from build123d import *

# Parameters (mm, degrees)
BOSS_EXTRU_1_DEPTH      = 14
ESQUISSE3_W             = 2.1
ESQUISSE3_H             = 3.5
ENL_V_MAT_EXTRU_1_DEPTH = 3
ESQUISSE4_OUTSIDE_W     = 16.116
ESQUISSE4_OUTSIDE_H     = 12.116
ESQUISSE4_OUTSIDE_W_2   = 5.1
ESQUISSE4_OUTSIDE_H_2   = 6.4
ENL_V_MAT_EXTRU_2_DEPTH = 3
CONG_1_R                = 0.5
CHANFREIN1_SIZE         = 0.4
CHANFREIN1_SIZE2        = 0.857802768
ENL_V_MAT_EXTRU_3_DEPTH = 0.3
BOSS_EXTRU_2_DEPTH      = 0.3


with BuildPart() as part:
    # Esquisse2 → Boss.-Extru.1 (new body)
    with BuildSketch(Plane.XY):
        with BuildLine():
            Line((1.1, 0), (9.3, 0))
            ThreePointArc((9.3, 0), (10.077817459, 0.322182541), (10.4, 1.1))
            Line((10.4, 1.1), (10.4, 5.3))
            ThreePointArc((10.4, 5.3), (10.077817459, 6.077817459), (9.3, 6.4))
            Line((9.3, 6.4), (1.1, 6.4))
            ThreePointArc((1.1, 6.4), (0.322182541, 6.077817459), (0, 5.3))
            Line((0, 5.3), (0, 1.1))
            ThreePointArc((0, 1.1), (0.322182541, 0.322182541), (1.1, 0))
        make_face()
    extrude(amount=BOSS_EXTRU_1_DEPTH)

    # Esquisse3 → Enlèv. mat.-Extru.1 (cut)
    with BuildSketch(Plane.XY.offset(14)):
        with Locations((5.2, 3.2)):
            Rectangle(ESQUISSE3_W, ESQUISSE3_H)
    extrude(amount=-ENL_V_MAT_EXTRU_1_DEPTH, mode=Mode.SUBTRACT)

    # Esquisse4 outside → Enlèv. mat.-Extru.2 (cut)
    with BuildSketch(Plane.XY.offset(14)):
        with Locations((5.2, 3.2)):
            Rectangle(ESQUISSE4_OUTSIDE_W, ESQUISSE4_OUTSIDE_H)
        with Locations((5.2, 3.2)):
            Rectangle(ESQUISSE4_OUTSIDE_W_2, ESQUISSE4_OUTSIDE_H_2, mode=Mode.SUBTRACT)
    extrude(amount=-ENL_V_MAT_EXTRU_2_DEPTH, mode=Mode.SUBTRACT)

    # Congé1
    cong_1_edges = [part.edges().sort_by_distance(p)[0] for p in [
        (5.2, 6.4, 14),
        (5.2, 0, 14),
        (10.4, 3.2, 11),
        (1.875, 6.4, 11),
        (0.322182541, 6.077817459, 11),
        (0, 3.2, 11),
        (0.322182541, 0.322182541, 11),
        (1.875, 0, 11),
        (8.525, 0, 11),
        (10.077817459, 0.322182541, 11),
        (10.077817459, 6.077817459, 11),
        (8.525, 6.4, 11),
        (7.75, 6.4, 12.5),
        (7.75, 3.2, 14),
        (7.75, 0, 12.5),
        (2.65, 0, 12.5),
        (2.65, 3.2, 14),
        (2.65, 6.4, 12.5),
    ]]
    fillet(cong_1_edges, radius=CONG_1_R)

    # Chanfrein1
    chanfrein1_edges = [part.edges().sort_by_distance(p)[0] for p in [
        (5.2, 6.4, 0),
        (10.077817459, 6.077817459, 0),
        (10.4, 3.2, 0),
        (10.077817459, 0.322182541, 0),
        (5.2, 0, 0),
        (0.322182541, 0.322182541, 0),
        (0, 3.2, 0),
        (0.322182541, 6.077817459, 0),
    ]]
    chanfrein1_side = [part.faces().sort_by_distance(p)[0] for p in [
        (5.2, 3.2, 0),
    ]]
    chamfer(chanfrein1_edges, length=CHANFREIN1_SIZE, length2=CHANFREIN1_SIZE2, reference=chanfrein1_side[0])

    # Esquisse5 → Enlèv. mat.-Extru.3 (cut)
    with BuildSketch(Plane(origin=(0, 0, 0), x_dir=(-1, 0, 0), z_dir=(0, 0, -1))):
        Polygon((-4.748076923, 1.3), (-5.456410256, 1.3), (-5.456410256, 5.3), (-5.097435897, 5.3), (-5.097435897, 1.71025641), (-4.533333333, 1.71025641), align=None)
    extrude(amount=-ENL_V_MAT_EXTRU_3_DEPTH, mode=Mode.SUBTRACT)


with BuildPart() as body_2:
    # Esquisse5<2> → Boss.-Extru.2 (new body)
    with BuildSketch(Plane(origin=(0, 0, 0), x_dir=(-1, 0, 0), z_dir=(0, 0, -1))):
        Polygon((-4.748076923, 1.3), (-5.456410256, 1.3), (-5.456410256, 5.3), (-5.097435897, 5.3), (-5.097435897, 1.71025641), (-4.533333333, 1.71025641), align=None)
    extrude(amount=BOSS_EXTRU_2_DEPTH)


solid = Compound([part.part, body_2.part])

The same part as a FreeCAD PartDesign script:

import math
import FreeCAD as App
import Part
import Sketcher
from FreeCAD import Vector
Q = App.Units.Quantity


def edges_at(feature, points):
    """Names of the edges that pass closest to the given points."""
    edges = feature.Shape.Edges
    near = lambda p: min(range(len(edges)), key=lambda i: edges[i].distToShape(Part.Vertex(*p))[0])
    return sorted({f"Edge{near(p) + 1}" for p in points})

doc = App.newDocument("Part")
body = doc.addObject("PartDesign::Body", "Body")

# Sketch on XY plane
sketch1 = body.newObject("Sketcher::SketchObject", "Sketch")
sketch1.AttachmentSupport = (doc.getObject("XY_Plane"), [""])
sketch1.MapMode = "FlatFace"
sketch1.addGeometry([
    Part.LineSegment(Vector(1.1, 0, 0), Vector(9.3, 0, 0)),  # 0
    Part.ArcOfCircle(Part.Circle(Vector(9.3, 1.1, 0), Vector(0, 0, 1), 1.1), math.radians(-90), math.radians(0)),  # 1
    Part.LineSegment(Vector(10.4, 1.1, 0), Vector(10.4, 5.3, 0)),  # 2
    Part.ArcOfCircle(Part.Circle(Vector(9.3, 5.3, 0), Vector(0, 0, 1), 1.1), math.radians(0), math.radians(90)),  # 3
    Part.LineSegment(Vector(9.3, 6.4, 0), Vector(1.1, 6.4, 0)),  # 4
    Part.ArcOfCircle(Part.Circle(Vector(1.1, 5.3, 0), Vector(0, 0, 1), 1.1), math.radians(90), math.radians(180)),  # 5
    Part.LineSegment(Vector(0, 5.3, 0), Vector(0, 1.1, 0)),  # 6
    Part.ArcOfCircle(Part.Circle(Vector(1.1, 1.1, 0), Vector(0, 0, 1), 1.1), math.radians(-180), math.radians(-90)),  # 7
], False)
sketch1.addConstraint([
    Sketcher.Constraint("Tangent", 0, 2, 1, 1),
    Sketcher.Constraint("Tangent", 1, 2, 2, 1),
    Sketcher.Constraint("Tangent", 2, 2, 3, 1),
    Sketcher.Constraint("Tangent", 3, 2, 4, 1),
    Sketcher.Constraint("Tangent", 4, 2, 5, 1),
    Sketcher.Constraint("Tangent", 5, 2, 6, 1),
    Sketcher.Constraint("Tangent", 6, 2, 7, 1),
    Sketcher.Constraint("Tangent", 7, 2, 0, 1),
    Sketcher.Constraint("Horizontal", 0),
    Sketcher.Constraint("Vertical", 2),
    Sketcher.Constraint("Horizontal", 4),
    Sketcher.Constraint("Vertical", 6),
    Sketcher.Constraint("Equal", 1, 3),
    Sketcher.Constraint("Equal", 3, 5),
    Sketcher.Constraint("Equal", 5, 7),
    Sketcher.Constraint("PointOnObject", 0, 2, -1),
    Sketcher.Constraint("PointOnObject", 5, 2, -2),
    Sketcher.Constraint("Radius", 1, Q("1.1 mm")),
    Sketcher.Constraint("DistanceX", 0, 1, 0, 2, Q("8.2 mm")),
    Sketcher.Constraint("DistanceY", 2, 1, 2, 2, Q("4.2 mm")),
])
pad1 = body.newObject("PartDesign::Pad", "Pad")
pad1.Profile = sketch1
pad1.Length = 14

# Sketch on XY plane
sketch2 = body.newObject("Sketcher::SketchObject", "Sketch001")
sketch2.AttachmentSupport = (doc.getObject("XY_Plane"), [""])
sketch2.MapMode = "FlatFace"
sketch2.AttachmentOffset = App.Placement(Vector(0, 0, 14), App.Rotation())
sketch2.addGeometry([
    Part.LineSegment(Vector(4.15, 4.95, 0), Vector(4.15, 1.45, 0)),
    Part.LineSegment(Vector(4.15, 1.45, 0), Vector(6.25, 1.45, 0)),
    Part.LineSegment(Vector(6.25, 1.45, 0), Vector(6.25, 4.95, 0)),
    Part.LineSegment(Vector(6.25, 4.95, 0), Vector(4.15, 4.95, 0)),
], False)
sketch2.addConstraint([
    Sketcher.Constraint("Coincident", 0, 2, 1, 1),
    Sketcher.Constraint("Coincident", 1, 2, 2, 1),
    Sketcher.Constraint("Coincident", 2, 2, 3, 1),
    Sketcher.Constraint("Coincident", 3, 2, 0, 1),
    Sketcher.Constraint("Vertical", 0),
    Sketcher.Constraint("Horizontal", 1),
    Sketcher.Constraint("Vertical", 2),
    Sketcher.Constraint("Horizontal", 3),
    Sketcher.Constraint("DistanceX", 1, 1, 1, 2, Q("2.1 mm")),
    Sketcher.Constraint("DistanceY", 0, 2, 0, 1, Q("3.5 mm")),
    Sketcher.Constraint("DistanceX", -1, 1, 0, 2, Q("4.15 mm")),
    Sketcher.Constraint("DistanceY", -1, 1, 0, 2, Q("1.45 mm")),
])
pocket1 = body.newObject("PartDesign::Pocket", "Pocket")
pocket1.Profile = sketch2
pocket1.Length = 3

# Sketch on XY plane
sketch3 = body.newObject("Sketcher::SketchObject", "Sketch002")
sketch3.AttachmentSupport = (doc.getObject("XY_Plane"), [""])
sketch3.MapMode = "FlatFace"
sketch3.AttachmentOffset = App.Placement(Vector(0, 0, 14), App.Rotation())
sketch3.addGeometry([
    Part.LineSegment(Vector(-2.858, 9.258, 0), Vector(-2.858, -2.858, 0)),  # 0
    Part.LineSegment(Vector(-2.858, -2.858, 0), Vector(13.258, -2.858, 0)),  # 1
    Part.LineSegment(Vector(13.258, -2.858, 0), Vector(13.258, 9.258, 0)),  # 2
    Part.LineSegment(Vector(13.258, 9.258, 0), Vector(-2.858, 9.258, 0)),  # 3
    Part.LineSegment(Vector(7.75, 0, 0), Vector(2.65, 0, 0)),  # 4
    Part.LineSegment(Vector(2.65, 0, 0), Vector(2.65, 6.4, 0)),  # 5
    Part.LineSegment(Vector(2.65, 6.4, 0), Vector(7.75, 6.4, 0)),  # 6
    Part.LineSegment(Vector(7.75, 6.4, 0), Vector(7.75, 0, 0)),  # 7
], False)
sketch3.addConstraint([
    Sketcher.Constraint("Coincident", 0, 2, 1, 1),
    Sketcher.Constraint("Coincident", 1, 2, 2, 1),
    Sketcher.Constraint("Coincident", 2, 2, 3, 1),
    Sketcher.Constraint("Coincident", 3, 2, 0, 1),
    Sketcher.Constraint("Coincident", 4, 2, 5, 1),
    Sketcher.Constraint("Coincident", 5, 2, 6, 1),
    Sketcher.Constraint("Coincident", 6, 2, 7, 1),
    Sketcher.Constraint("Coincident", 7, 2, 4, 1),
    Sketcher.Constraint("Vertical", 0),
    Sketcher.Constraint("Horizontal", 1),
    Sketcher.Constraint("Vertical", 2),
    Sketcher.Constraint("Horizontal", 3),
    Sketcher.Constraint("Horizontal", 4),
    Sketcher.Constraint("Vertical", 5),
    Sketcher.Constraint("Horizontal", 6),
    Sketcher.Constraint("Vertical", 7),
    Sketcher.Constraint("PointOnObject", 4, 2, -1),
    Sketcher.Constraint("DistanceX", 4, 2, 4, 1, Q("5.1 mm")),
    Sketcher.Constraint("DistanceY", 5, 1, 5, 2, Q("6.4 mm")),
    Sketcher.Constraint("DistanceX", 1, 1, 1, 2, Q("16.116 mm")),
    Sketcher.Constraint("DistanceY", 0, 2, 0, 1, Q("12.116 mm")),
    Sketcher.Constraint("DistanceX", -1, 1, 4, 2, Q("2.65 mm")),
    Sketcher.Constraint("DistanceX", 0, 2, -1, 1, Q("2.858 mm")),
    Sketcher.Constraint("DistanceY", 0, 2, -1, 1, Q("2.858 mm")),
])
pocket2 = body.newObject("PartDesign::Pocket", "Pocket001")
pocket2.Profile = sketch3
pocket2.Length = 3
doc.recompute()

fillet = body.newObject("PartDesign::Fillet", "Fillet")
fillet.Base = (pocket2, edges_at(pocket2, [
    (5.2, 6.4, 14),
    (5.2, 0, 14),
    (10.4, 3.2, 11),
    (1.875, 6.4, 11),
    (0.322, 6.078, 11),
    (0, 3.2, 11),
    (0.322, 0.322, 11),
    (1.875, 0, 11),
    (8.525, 0, 11),
    (10.078, 0.322, 11),
    (10.078, 6.078, 11),
    (8.525, 6.4, 11),
    (7.75, 6.4, 12.5),
    (7.75, 3.2, 14),
    (7.75, 0, 12.5),
    (2.65, 0, 12.5),
    (2.65, 3.2, 14),
    (2.65, 6.4, 12.5),
]))
fillet.Radius = 0.5
doc.recompute()

chamfer = body.newObject("PartDesign::Chamfer", "Chamfer")
chamfer.Base = (fillet, edges_at(fillet, [
    (5.2, 6.4, 0),
    (10.078, 6.078, 0),
    (10.4, 3.2, 0),
    (10.078, 0.322, 0),
    (5.2, 0, 0),
    (0.322, 0.322, 0),
    (0, 3.2, 0),
    (0.322, 6.078, 0),
]))
chamfer.ChamferType = "Two distances"
chamfer.Size = 0.4
chamfer.Size2 = 0.857803

# Sketch on XY plane
sketch4 = body.newObject("Sketcher::SketchObject", "Sketch003")
sketch4.AttachmentSupport = (doc.getObject("XY_Plane"), [""])
sketch4.MapMode = "FlatFace"
sketch4.addGeometry([
    Part.LineSegment(Vector(5.45641, 1.3, 0), Vector(4.748077, 1.3, 0)),  # 0
    Part.LineSegment(Vector(4.748077, 1.3, 0), Vector(4.533333, 1.710256, 0)),  # 1
    Part.LineSegment(Vector(4.533333, 1.710256, 0), Vector(5.097436, 1.710256, 0)),  # 2
    Part.LineSegment(Vector(5.097436, 1.710256, 0), Vector(5.097436, 5.3, 0)),  # 3
    Part.LineSegment(Vector(5.097436, 5.3, 0), Vector(5.45641, 5.3, 0)),  # 4
    Part.LineSegment(Vector(5.45641, 5.3, 0), Vector(5.45641, 1.3, 0)),  # 5
], False)
sketch4.addConstraint([
    Sketcher.Constraint("Coincident", 0, 2, 1, 1),
    Sketcher.Constraint("Coincident", 1, 2, 2, 1),
    Sketcher.Constraint("Coincident", 2, 2, 3, 1),
    Sketcher.Constraint("Coincident", 3, 2, 4, 1),
    Sketcher.Constraint("Coincident", 4, 2, 5, 1),
    Sketcher.Constraint("Coincident", 5, 2, 0, 1),
    Sketcher.Constraint("Horizontal", 0),
    Sketcher.Constraint("Horizontal", 2),
    Sketcher.Constraint("Vertical", 3),
    Sketcher.Constraint("Horizontal", 4),
    Sketcher.Constraint("Vertical", 5),
    Sketcher.Constraint("DistanceY", 5, 2, 5, 1, Q("4 mm")),
    Sketcher.Constraint("DistanceY", -1, 1, 0, 2, Q("1.3 mm")),
    Sketcher.Constraint("Distance", 1, Q("0.463061 mm")),
    Sketcher.Constraint("DistanceX", 0, 2, 0, 1, Q("0.708333 mm")),
    Sketcher.Constraint("DistanceX", 2, 1, 2, 2, Q("0.564103 mm")),
    Sketcher.Constraint("DistanceX", 4, 1, 4, 2, Q("0.358974 mm")),
    Sketcher.Constraint("DistanceX", -1, 1, 4, 2, Q("5.45641 mm")),
])
pocket3 = body.newObject("PartDesign::Pocket", "Pocket002")
pocket3.Profile = sketch4
pocket3.Length = 0.3
pocket3.Reversed = True
body2 = doc.addObject("PartDesign::Body", "Body001")

# Sketch on XY plane
sketch5 = body2.newObject("Sketcher::SketchObject", "Sketch004")
sketch5.AttachmentSupport = (doc.getObject("XY_Plane001"), [""])
sketch5.MapMode = "FlatFace"
sketch5.addGeometry([
    Part.LineSegment(Vector(5.45641, 1.3, 0), Vector(4.748077, 1.3, 0)),  # 0
    Part.LineSegment(Vector(4.748077, 1.3, 0), Vector(4.533333, 1.710256, 0)),  # 1
    Part.LineSegment(Vector(4.533333, 1.710256, 0), Vector(5.097436, 1.710256, 0)),  # 2
    Part.LineSegment(Vector(5.097436, 1.710256, 0), Vector(5.097436, 5.3, 0)),  # 3
    Part.LineSegment(Vector(5.097436, 5.3, 0), Vector(5.45641, 5.3, 0)),  # 4
    Part.LineSegment(Vector(5.45641, 5.3, 0), Vector(5.45641, 1.3, 0)),  # 5
], False)
sketch5.addConstraint([
    Sketcher.Constraint("Coincident", 0, 2, 1, 1),
    Sketcher.Constraint("Coincident", 1, 2, 2, 1),
    Sketcher.Constraint("Coincident", 2, 2, 3, 1),
    Sketcher.Constraint("Coincident", 3, 2, 4, 1),
    Sketcher.Constraint("Coincident", 4, 2, 5, 1),
    Sketcher.Constraint("Coincident", 5, 2, 0, 1),
    Sketcher.Constraint("Horizontal", 0),
    Sketcher.Constraint("Horizontal", 2),
    Sketcher.Constraint("Vertical", 3),
    Sketcher.Constraint("Horizontal", 4),
    Sketcher.Constraint("Vertical", 5),
    Sketcher.Constraint("DistanceY", 5, 2, 5, 1, Q("4 mm")),
    Sketcher.Constraint("DistanceY", -1, 1, 0, 2, Q("1.3 mm")),
    Sketcher.Constraint("Distance", 1, Q("0.463061 mm")),
    Sketcher.Constraint("DistanceX", 0, 2, 0, 1, Q("0.708333 mm")),
    Sketcher.Constraint("DistanceX", 2, 1, 2, 2, Q("0.564103 mm")),
    Sketcher.Constraint("DistanceX", 4, 1, 4, 2, Q("0.358974 mm")),
    Sketcher.Constraint("DistanceX", -1, 1, 4, 2, Q("5.45641 mm")),
])
pad2 = body2.newObject("PartDesign::Pad", "Pad001")
pad2.Profile = sketch5
pad2.Length = 0.3
pad2.Reversed = True

doc.recompute()
